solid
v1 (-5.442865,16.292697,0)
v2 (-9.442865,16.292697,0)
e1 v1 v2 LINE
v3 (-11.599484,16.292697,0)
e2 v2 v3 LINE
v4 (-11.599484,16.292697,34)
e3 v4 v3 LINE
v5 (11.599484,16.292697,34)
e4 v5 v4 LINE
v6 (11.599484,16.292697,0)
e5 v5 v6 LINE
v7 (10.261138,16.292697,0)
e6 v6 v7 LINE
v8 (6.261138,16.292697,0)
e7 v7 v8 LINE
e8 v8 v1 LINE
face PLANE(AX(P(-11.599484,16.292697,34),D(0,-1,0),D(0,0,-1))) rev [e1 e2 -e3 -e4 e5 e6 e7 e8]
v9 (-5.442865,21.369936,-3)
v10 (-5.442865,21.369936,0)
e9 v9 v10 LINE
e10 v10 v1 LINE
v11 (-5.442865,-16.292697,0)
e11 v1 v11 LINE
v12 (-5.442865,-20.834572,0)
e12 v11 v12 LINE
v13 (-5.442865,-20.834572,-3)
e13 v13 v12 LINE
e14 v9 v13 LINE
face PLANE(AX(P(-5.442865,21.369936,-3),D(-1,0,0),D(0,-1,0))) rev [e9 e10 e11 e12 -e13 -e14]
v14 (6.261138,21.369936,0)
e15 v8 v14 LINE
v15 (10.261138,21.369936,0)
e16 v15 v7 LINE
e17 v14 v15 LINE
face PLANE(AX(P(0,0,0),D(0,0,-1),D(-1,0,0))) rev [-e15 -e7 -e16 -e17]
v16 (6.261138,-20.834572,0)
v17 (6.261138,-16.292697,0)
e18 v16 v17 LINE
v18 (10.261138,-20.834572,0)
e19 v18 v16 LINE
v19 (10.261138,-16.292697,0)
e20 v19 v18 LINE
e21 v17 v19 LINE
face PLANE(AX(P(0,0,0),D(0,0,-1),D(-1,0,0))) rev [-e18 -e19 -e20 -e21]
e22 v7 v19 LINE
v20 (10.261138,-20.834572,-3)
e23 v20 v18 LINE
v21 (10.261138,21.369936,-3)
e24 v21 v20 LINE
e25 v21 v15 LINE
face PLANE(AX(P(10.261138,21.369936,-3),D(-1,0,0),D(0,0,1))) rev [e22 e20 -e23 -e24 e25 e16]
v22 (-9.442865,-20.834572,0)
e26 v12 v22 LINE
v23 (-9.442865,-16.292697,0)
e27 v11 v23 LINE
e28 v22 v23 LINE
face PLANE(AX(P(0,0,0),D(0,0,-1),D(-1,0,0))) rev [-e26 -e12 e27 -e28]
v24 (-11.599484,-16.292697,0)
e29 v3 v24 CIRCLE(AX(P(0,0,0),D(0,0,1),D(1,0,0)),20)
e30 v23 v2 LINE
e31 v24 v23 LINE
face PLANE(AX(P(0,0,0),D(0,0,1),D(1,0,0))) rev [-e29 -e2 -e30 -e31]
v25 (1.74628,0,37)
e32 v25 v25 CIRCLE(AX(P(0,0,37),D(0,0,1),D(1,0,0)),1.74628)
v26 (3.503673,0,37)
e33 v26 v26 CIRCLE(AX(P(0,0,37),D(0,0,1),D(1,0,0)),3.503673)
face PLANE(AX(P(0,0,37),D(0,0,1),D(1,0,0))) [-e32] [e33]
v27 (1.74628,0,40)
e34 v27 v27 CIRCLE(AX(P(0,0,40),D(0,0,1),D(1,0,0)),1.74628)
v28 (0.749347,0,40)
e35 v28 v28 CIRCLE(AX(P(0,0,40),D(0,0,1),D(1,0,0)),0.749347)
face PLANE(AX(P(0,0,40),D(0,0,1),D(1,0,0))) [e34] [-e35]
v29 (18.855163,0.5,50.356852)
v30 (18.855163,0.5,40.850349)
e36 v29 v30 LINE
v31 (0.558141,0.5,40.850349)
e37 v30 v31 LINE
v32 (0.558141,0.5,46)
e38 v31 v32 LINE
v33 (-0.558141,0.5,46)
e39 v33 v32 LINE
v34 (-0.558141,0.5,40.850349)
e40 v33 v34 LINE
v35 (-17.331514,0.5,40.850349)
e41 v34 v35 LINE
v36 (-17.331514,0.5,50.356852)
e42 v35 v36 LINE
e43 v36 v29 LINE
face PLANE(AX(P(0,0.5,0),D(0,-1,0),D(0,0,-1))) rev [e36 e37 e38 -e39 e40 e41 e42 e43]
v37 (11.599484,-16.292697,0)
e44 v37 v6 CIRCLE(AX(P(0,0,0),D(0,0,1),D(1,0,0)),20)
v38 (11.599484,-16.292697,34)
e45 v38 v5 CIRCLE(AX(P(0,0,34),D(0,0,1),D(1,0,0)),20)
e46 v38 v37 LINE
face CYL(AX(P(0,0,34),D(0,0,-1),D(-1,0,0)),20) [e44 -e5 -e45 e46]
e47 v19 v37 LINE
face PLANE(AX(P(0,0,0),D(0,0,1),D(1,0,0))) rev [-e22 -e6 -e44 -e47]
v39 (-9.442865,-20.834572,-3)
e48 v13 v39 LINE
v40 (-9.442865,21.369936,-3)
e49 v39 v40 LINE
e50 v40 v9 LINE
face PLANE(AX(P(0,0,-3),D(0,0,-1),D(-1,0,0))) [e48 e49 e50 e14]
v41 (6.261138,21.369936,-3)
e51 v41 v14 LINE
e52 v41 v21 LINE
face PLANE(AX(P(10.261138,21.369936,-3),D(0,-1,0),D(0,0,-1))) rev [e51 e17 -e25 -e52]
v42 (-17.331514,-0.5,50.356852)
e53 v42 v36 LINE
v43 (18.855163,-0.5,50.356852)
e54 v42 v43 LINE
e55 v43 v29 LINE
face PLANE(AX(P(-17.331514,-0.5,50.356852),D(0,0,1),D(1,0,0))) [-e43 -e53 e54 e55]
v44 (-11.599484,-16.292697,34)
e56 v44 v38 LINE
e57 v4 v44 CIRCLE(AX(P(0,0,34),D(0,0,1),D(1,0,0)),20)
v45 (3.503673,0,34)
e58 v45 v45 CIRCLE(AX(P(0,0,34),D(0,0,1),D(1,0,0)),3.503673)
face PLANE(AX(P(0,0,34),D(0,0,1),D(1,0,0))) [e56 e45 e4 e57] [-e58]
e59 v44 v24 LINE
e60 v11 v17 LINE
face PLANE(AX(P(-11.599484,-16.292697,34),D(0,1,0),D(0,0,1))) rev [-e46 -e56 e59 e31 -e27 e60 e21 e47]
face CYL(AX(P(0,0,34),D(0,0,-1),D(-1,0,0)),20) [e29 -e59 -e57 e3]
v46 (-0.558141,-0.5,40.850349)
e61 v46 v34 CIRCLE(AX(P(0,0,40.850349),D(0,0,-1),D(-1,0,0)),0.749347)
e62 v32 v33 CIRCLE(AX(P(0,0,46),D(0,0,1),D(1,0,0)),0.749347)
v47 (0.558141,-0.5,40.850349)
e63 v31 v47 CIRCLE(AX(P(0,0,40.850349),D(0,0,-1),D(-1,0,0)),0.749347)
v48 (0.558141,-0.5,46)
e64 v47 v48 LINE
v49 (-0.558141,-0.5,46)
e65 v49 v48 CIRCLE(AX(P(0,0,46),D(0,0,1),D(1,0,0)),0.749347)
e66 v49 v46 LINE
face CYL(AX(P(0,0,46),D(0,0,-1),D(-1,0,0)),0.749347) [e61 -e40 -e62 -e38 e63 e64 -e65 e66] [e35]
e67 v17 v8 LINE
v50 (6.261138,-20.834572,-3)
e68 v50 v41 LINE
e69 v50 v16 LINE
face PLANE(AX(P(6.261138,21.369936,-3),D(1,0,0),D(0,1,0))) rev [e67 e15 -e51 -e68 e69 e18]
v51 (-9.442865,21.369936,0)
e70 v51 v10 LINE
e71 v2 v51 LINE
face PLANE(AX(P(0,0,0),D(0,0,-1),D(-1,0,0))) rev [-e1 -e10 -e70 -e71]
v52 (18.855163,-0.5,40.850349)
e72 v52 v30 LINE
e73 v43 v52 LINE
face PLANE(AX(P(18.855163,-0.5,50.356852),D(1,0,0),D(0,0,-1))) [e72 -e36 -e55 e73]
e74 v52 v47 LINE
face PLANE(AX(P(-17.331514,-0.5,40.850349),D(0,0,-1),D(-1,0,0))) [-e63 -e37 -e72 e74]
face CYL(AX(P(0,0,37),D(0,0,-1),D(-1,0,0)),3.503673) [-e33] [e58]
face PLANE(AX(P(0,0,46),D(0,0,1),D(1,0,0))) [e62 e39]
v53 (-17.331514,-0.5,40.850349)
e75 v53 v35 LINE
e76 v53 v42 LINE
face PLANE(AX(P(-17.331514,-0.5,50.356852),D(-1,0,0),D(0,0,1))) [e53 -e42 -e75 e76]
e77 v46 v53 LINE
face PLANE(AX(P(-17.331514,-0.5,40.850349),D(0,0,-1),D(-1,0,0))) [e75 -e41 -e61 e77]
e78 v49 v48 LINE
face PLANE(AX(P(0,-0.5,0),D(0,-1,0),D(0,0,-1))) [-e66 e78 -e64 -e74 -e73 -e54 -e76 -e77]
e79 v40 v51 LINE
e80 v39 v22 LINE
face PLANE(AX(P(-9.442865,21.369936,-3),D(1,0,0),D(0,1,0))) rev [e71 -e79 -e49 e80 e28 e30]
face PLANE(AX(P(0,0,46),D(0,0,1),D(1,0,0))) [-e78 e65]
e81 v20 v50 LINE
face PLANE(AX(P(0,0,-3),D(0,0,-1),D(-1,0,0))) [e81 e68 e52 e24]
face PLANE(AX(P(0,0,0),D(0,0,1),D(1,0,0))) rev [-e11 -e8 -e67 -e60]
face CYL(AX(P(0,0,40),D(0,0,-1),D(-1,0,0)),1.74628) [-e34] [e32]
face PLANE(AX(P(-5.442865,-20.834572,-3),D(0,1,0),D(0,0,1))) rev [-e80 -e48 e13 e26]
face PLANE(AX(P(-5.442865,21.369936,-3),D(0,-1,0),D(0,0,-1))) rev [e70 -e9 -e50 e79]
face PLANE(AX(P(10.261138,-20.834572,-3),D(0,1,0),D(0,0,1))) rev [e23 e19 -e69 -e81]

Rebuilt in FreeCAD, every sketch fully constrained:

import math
import FreeCAD as App
import Part
import Sketcher
from FreeCAD import Vector


def add_polygon(sketch, points):
    """Adds a closed chain of lines whose ends are joined by coincident constraints."""
    first, n = sketch.GeometryCount, len(points)
    for a, b in zip(points, points[1:] + points[:1]):
        sketch.addGeometry(Part.LineSegment(App.Vector(*a, 0), App.Vector(*b, 0)), False)
    for i in range(n):
        sketch.addConstraint(Sketcher.Constraint("Coincident", first + i, 2, first + (i + 1) % n, 1))

doc = App.newDocument("Part")
body = doc.addObject("PartDesign::Body", "Body")

sketch1 = body.newObject("Sketcher::SketchObject", "Sketch")
sketch1.AttachmentSupport = (doc.getObject("XY_Plane"), [""])
sketch1.MapMode = "FlatFace"
sketch1.addGeometry(Part.LineSegment(Vector(12, 16, 0), Vector(-12, 16, 0)), False)
sketch1.addGeometry(Part.ArcOfCircle(Part.Circle(Vector(0, 0, 0), Vector(0, 0, 1), 20), math.radians(125), math.radians(235)), False)
sketch1.addGeometry(Part.LineSegment(Vector(-12, -16, 0), Vector(12, -16, 0)), False)
sketch1.addGeometry(Part.ArcOfCircle(Part.Circle(Vector(0, 0, 0), Vector(0, 0, 1), 20), math.radians(-55), math.radians(55)), False)
sketch1.addConstraint(Sketcher.Constraint("Coincident", 0, 2, 1, 1))
sketch1.addConstraint(Sketcher.Constraint("Coincident", 1, 2, 2, 1))
sketch1.addConstraint(Sketcher.Constraint("Coincident", 2, 2, 3, 1))
sketch1.addConstraint(Sketcher.Constraint("Coincident", 3, 2, 0, 1))
sketch1.addConstraint(Sketcher.Constraint("Horizontal", 0))
sketch1.addConstraint(Sketcher.Constraint("Horizontal", 2))
sketch1.addConstraint(Sketcher.Constraint("Coincident", 1, 3, -1, 1))
sketch1.addConstraint(Sketcher.Constraint("Coincident", 3, 3, -1, 1))
sketch1.addConstraint(Sketcher.Constraint("Equal", 1, 3))
sketch1.addConstraint(Sketcher.Constraint("Vertical", 0, 2, 1, 2))
sketch1.addConstraint(Sketcher.Constraint("Radius", 1, 20.0))
sketch1.addConstraint(Sketcher.Constraint("DistanceX", 0, 2, 0, 1, 23.198969))
pad1 = body.newObject("PartDesign::Pad", "Pad")
pad1.Profile = sketch1
pad1.Length = 34

sketch2 = body.newObject("Sketcher::SketchObject", "Sketch001")
sketch2.AttachmentSupport = (doc.getObject("XY_Plane"), [""])
sketch2.MapMode = "FlatFace"
sketch2.AttachmentOffset = App.Placement(Vector(0, 0, 34), App.Rotation())
sketch2.addGeometry(Part.Circle(Vector(0, 0, 0), Vector(0, 0, 1), 3.5), False)
sketch2.addConstraint(Sketcher.Constraint("Coincident", 0, 3, -1, 1))
sketch2.addConstraint(Sketcher.Constraint("Diameter", 0, 7.007345))
pad2 = body.newObject("PartDesign::Pad", "Pad001")
pad2.Profile = sketch2
pad2.Length = 3

sketch3 = body.newObject("Sketcher::SketchObject", "Sketch002")
sketch3.AttachmentSupport = (doc.getObject("XY_Plane"), [""])
sketch3.MapMode = "FlatFace"
sketch3.AttachmentOffset = App.Placement(Vector(0, 0, 37), App.Rotation())
sketch3.addGeometry(Part.Circle(Vector(0, 0, 0), Vector(0, 0, 1), 1.7), False)
sketch3.addConstraint(Sketcher.Constraint("Coincident", 0, 3, -1, 1))
sketch3.addConstraint(Sketcher.Constraint("Diameter", 0, 3.49256))
pad3 = body.newObject("PartDesign::Pad", "Pad002")
pad3.Profile = sketch3
pad3.Length = 3

sketch4 = body.newObject("Sketcher::SketchObject", "Sketch003")
sketch4.AttachmentSupport = (doc.getObject("XY_Plane"), [""])
sketch4.MapMode = "FlatFace"
sketch4.AttachmentOffset = App.Placement(Vector(0, 0, 40), App.Rotation())
sketch4.addGeometry(Part.Circle(Vector(0, 0, 0), Vector(0, 0, 1), 0.7), False)
sketch4.addConstraint(Sketcher.Constraint("Coincident", 0, 3, -1, 1))
sketch4.addConstraint(Sketcher.Constraint("Diameter", 0, 1.498695))
pad4 = body.newObject("PartDesign::Pad", "Pad003")
pad4.Profile = sketch4
pad4.Length = 6

sketch5 = body.newObject("Sketcher::SketchObject", "Sketch004")
sketch5.AttachmentSupport = (doc.getObject("XY_Plane"), [""])
sketch5.MapMode = "FlatFace"
add_polygon(sketch5, [(10.3, 21.4), (10.3, -20.8), (6.3, -20.8), (6.3, 21.4)])
add_polygon(sketch5, [(-5.4, 21.4), (-5.4, -20.8), (-9.4, -20.8), (-9.4, 21.4)])
sketch5.addConstraint(Sketcher.Constraint("Vertical", 0))
sketch5.addConstraint(Sketcher.Constraint("Horizontal", 1))
sketch5.addConstraint(Sketcher.Constraint("Vertical", 2))
sketch5.addConstraint(Sketcher.Constraint("Horizontal", 3))
sketch5.addConstraint(Sketcher.Constraint("Vertical", 4))
sketch5.addConstraint(Sketcher.Constraint("Horizontal", 5))
sketch5.addConstraint(Sketcher.Constraint("Vertical", 6))
sketch5.addConstraint(Sketcher.Constraint("Horizontal", 7))
sketch5.addConstraint(Sketcher.Constraint("Horizontal", 1, 2, 4, 2))
sketch5.addConstraint(Sketcher.Constraint("Horizontal", 3, 2, 6, 2))
sketch5.addConstraint(Sketcher.Constraint("Equal", 3, 5))
sketch5.addConstraint(Sketcher.Constraint("DistanceX", 1, 2, 1, 1, 4.0))
sketch5.addConstraint(Sketcher.Constraint("DistanceY", 0, 2, 0, 1, 42.204508))
sketch5.addConstraint(Sketcher.Constraint("DistanceX", -1, 1, 0, 2, 10.261138))
sketch5.addConstraint(Sketcher.Constraint("DistanceY", 0, 2, -1, 1, 20.834572))
sketch5.addConstraint(Sketcher.Constraint("DistanceX", 4, 2, -1, 1, 5.442865))
pad5 = body.newObject("PartDesign::Pad", "Pad004")
pad5.Profile = sketch5
pad5.Length = 3
pad5.Reversed = True

sketch6 = body.newObject("Sketcher::SketchObject", "Sketch005")
sketch6.AttachmentSupport = (doc.getObject("XZ_Plane"), [""])
sketch6.MapMode = "FlatFace"
add_polygon(sketch6, [(-17, 41), (-17, 50), (19, 50), (19, 41)])
sketch6.addConstraint(Sketcher.Constraint("Vertical", 0))
sketch6.addConstraint(Sketcher.Constraint("Horizontal", 1))
sketch6.addConstraint(Sketcher.Constraint("Vertical", 2))
sketch6.addConstraint(Sketcher.Constraint("Horizontal", 3))
sketch6.addConstraint(Sketcher.Constraint("DistanceX", 1, 1, 1, 2, 36.186677))
sketch6.addConstraint(Sketcher.Constraint("DistanceY", 0, 1, 0, 2, 9.506503))
sketch6.addConstraint(Sketcher.Constraint("DistanceY", -1, 1, 0, 2, 50.356852))
sketch6.addConstraint(Sketcher.Constraint("DistanceX", 0, 2, -1, 1, 17.331514))
pad6 = body.newObject("PartDesign::Pad", "Pad005")
pad6.Profile = sketch6
pad6.Type = "TwoLengths"
pad6.Length = 0.5
pad6.Length2 = 0.5
pad6.Reversed = True

doc.recompute()
